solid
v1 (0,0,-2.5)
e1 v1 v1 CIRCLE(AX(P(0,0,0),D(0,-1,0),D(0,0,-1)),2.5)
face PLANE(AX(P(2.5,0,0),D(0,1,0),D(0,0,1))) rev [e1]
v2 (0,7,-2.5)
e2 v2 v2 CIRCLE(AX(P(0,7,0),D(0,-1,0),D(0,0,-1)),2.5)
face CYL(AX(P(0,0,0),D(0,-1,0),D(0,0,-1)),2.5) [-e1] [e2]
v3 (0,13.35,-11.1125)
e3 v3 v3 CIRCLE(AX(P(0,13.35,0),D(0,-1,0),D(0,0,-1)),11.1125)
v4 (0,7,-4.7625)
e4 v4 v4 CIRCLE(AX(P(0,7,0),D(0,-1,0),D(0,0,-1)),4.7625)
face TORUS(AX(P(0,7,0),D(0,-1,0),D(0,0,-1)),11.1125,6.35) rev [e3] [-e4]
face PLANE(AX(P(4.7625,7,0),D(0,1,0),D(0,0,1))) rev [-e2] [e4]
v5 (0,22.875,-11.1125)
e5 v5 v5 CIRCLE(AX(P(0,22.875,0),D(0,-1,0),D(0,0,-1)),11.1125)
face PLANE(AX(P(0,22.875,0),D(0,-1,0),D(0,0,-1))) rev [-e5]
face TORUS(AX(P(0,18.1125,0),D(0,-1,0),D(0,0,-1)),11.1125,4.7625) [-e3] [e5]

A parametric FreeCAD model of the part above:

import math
import FreeCAD as App
import Part
import Sketcher
Q = App.Units.Quantity

doc = App.newDocument("Part")
params = doc.addObject("Spreadsheet::Sheet", "Params")
for row, (alias, value) in enumerate([
    ("sketch1_radius", "0.25 in"),
    ("sketch1_radius2", "0.1875 in"),
    ("sketch1_width", "0.4375 in"),
    ("revolution_angle", "360 deg"),
], start=1):
    params.set(f"A{row}", alias)
    params.set(f"B{row}", "=" + value)
    params.setAlias(f"B{row}", alias)

body = doc.addObject("PartDesign::Body", "Body")

# Sketch on XY plane
sketch1 = body.newObject("Sketcher::SketchObject", "Sketch")
sketch1.AttachmentSupport = (doc.getObject("XY_Plane"), [""])
sketch1.MapMode = "FlatFace"
sketch1.addGeometry([
    Part.LineSegment(App.Vector(0, 22.9, 0), App.Vector(0, 0, 0)),  # 0
    Part.LineSegment(App.Vector(0, 0, 0), App.Vector(2.5, 0, 0)),  # 1
    Part.LineSegment(App.Vector(2.5, 0, 0), App.Vector(2.5, 7, 0)),  # 2
    Part.LineSegment(App.Vector(2.5, 7, 0), App.Vector(4.8, 7, 0)),  # 3
    Part.ArcOfCircle(Part.Circle(App.Vector(11.1, 7, 0), App.Vector(0, 0, 1), 6.3), math.radians(90), math.radians(180)),  # 4
    Part.ArcOfCircle(Part.Circle(App.Vector(11.1, 18.1, 0), App.Vector(0, 0, 1), 4.8), math.radians(-90), math.radians(90)),  # 5
    Part.LineSegment(App.Vector(11.1, 22.9, 0), App.Vector(0, 22.9, 0)),  # 6
], False)
sketch1.addConstraint([
    Sketcher.Constraint("Coincident", 0, 2, 1, 1),
    Sketcher.Constraint("Coincident", 1, 2, 2, 1),
    Sketcher.Constraint("Coincident", 2, 2, 3, 1),
    Sketcher.Constraint("Coincident", 3, 2, 4, 2),
    Sketcher.Constraint("Tangent", 4, 1, 5, 1),
    Sketcher.Constraint("Tangent", 5, 2, 6, 1),
    Sketcher.Constraint("Coincident", 6, 2, 0, 1),
    Sketcher.Constraint("Vertical", 0),
    Sketcher.Constraint("Horizontal", 1),
    Sketcher.Constraint("Vertical", 2),
    Sketcher.Constraint("Horizontal", 3),
    Sketcher.Constraint("Horizontal", 6),
    Sketcher.Constraint("Coincident", 0, 2, -1, 1),
    Sketcher.Constraint("Horizontal", 4, 3, 2, 2),
    Sketcher.Constraint("Vertical", 4, 3, 5, 3),
    Sketcher.Constraint("Radius", 4, Q("0.25 in")),
    Sketcher.Constraint("Radius", 5, Q("0.1875 in")),
    Sketcher.Constraint("DistanceX", 6, 2, 6, 1, Q("0.4375 in")),
    Sketcher.Constraint("DistanceX", 1, 1, 1, 2, Q("2.5 mm")),
    Sketcher.Constraint("DistanceY", 0, 2, 0, 1, Q("22.875 mm")),
])
sketch1.setExpression("Constraints[15]", "Params.sketch1_radius")
sketch1.setExpression("Constraints[16]", "Params.sketch1_radius2")
sketch1.setExpression("Constraints[17]", "Params.sketch1_width")
revolution = body.newObject("PartDesign::Revolution", "Revolution")
revolution.Profile = sketch1
revolution.ReferenceAxis = (sketch1, ["V_Axis"])
revolution.setExpression("Angle", "Params.revolution_angle")

doc.recompute()
